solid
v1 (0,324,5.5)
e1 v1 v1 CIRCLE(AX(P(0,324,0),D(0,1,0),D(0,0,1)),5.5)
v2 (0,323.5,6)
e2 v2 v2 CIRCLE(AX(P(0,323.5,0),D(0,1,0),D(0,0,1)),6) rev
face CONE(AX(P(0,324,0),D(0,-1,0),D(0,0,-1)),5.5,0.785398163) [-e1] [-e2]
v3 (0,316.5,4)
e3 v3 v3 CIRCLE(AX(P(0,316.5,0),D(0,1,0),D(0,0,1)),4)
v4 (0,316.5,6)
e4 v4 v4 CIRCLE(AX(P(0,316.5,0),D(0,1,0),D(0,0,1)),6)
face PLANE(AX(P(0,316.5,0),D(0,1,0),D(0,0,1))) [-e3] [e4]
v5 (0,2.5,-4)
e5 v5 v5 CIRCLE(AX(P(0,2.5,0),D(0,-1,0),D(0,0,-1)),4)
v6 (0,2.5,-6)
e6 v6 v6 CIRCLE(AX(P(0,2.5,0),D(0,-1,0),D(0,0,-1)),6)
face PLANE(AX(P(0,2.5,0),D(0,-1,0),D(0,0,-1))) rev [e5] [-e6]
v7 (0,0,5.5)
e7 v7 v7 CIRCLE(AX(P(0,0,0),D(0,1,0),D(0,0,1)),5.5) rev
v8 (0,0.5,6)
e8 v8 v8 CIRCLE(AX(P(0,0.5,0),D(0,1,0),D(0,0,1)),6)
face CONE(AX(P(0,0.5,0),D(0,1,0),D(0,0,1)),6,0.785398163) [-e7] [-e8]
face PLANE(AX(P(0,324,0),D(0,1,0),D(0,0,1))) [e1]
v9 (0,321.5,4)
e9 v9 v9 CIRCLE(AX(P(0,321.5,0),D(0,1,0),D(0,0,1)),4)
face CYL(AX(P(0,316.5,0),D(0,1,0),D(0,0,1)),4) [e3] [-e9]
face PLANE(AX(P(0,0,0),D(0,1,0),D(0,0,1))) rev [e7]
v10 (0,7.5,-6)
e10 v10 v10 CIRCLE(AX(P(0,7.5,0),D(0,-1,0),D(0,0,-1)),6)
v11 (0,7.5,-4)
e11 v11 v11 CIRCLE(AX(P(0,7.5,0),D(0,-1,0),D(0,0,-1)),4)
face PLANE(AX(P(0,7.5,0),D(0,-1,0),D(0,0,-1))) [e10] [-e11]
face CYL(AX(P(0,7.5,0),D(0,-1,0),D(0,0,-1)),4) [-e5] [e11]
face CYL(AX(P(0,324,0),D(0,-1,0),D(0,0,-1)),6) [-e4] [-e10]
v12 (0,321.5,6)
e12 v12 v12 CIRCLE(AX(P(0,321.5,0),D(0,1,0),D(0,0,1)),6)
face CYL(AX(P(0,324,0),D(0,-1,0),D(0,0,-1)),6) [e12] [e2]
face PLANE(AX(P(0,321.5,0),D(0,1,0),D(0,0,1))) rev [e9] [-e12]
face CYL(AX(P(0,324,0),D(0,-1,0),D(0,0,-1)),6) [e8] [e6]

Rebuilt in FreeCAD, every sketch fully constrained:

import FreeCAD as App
import Part
import Sketcher

V = App.Vector
Q = App.Units.Quantity


def edges_at(feature, points):
    """Names of the edges that pass closest to the given points."""
    edges = feature.Shape.Edges
    near = lambda p: min(range(len(edges)), key=lambda i: edges[i].distToShape(Part.Vertex(*p))[0])
    return sorted({f"Edge{near(p) + 1}" for p in points})

doc = App.newDocument("Part")
body = doc.addObject("PartDesign::Body", "Body")

# Sketch on XZ plane
sketch1 = doc.addObject("Sketcher::SketchObject", "Sketch")
body.addObject(sketch1)
sketch1.AttachmentSupport = (doc.XZ_Plane, [""])
sketch1.MapMode = "FlatFace"
sketch1.addGeometry(Part.Circle(V(0, 0, 0), V(0, 0, 1), 6), False)
sketch1.addConstraint([
    Sketcher.Constraint("Coincident", 0, 3, -1, 1),
    Sketcher.Constraint("Diameter", 0, Q("12 mm")),
])
pad1 = doc.addObject("PartDesign::Pad", "Pad")
body.addObject(pad1)
pad1.Profile = sketch1
pad1.Length = 324
pad1.Reversed = True
doc.recompute()

chamfer = doc.addObject("PartDesign::Chamfer", "Chamfer")
body.addObject(chamfer)
chamfer.Base = (pad1, edges_at(pad1, [(0, 0, -6), (0, 324, -6)]))
chamfer.Size = 0.5

# Sketch on XZ plane
sketch2 = doc.addObject("Sketcher::SketchObject", "Sketch001")
body.addObject(sketch2)
sketch2.AttachmentSupport = (doc.XZ_Plane, [""])
sketch2.MapMode = "FlatFace"
sketch2.AttachmentOffset = App.Placement(V(0, 0, -5), App.Rotation())
sketch2.addGeometry([
    Part.Circle(V(0, 0, 0), V(0, 0, 1), 6),
    Part.Circle(V(0, 0, 0), V(0, 0, 1), 4),
], False)
sketch2.addConstraint([
    Sketcher.Constraint("Coincident", 0, 3, -1, 1),
    Sketcher.Constraint("Coincident", 1, 3, -1, 1),
    Sketcher.Constraint("Diameter", 0, Q("12 mm")),
    Sketcher.Constraint("Diameter", 1, Q("8 mm")),
])
pocket1 = doc.addObject("PartDesign::Pocket", "Pocket")
body.addObject(pocket1)
pocket1.Profile = sketch2
pocket1.Length = 5
pocket1.Midplane = True

# Sketch on XZ plane
sketch3 = doc.addObject("Sketcher::SketchObject", "Sketch002")
body.addObject(sketch3)
sketch3.AttachmentSupport = (doc.XZ_Plane, [""])
sketch3.MapMode = "FlatFace"
sketch3.AttachmentOffset = App.Placement(V(0, 0, -319), App.Rotation())
sketch3.addGeometry([
    Part.Circle(V(0, 0, 0), V(0, 0, 1), 6),
    Part.Circle(V(0, 0, 0), V(0, 0, 1), 4),
], False)
sketch3.addConstraint([
    Sketcher.Constraint("Coincident", 0, 3, -1, 1),
    Sketcher.Constraint("Coincident", 1, 3, -1, 1),
    Sketcher.Constraint("Diameter", 0, Q("12 mm")),
    Sketcher.Constraint("Diameter", 1, Q("8 mm")),
])
pocket2 = doc.addObject("PartDesign::Pocket", "Pocket001")
body.addObject(pocket2)
pocket2.Profile = sketch3
pocket2.Length = 5
pocket2.Midplane = True

doc.recompute()
